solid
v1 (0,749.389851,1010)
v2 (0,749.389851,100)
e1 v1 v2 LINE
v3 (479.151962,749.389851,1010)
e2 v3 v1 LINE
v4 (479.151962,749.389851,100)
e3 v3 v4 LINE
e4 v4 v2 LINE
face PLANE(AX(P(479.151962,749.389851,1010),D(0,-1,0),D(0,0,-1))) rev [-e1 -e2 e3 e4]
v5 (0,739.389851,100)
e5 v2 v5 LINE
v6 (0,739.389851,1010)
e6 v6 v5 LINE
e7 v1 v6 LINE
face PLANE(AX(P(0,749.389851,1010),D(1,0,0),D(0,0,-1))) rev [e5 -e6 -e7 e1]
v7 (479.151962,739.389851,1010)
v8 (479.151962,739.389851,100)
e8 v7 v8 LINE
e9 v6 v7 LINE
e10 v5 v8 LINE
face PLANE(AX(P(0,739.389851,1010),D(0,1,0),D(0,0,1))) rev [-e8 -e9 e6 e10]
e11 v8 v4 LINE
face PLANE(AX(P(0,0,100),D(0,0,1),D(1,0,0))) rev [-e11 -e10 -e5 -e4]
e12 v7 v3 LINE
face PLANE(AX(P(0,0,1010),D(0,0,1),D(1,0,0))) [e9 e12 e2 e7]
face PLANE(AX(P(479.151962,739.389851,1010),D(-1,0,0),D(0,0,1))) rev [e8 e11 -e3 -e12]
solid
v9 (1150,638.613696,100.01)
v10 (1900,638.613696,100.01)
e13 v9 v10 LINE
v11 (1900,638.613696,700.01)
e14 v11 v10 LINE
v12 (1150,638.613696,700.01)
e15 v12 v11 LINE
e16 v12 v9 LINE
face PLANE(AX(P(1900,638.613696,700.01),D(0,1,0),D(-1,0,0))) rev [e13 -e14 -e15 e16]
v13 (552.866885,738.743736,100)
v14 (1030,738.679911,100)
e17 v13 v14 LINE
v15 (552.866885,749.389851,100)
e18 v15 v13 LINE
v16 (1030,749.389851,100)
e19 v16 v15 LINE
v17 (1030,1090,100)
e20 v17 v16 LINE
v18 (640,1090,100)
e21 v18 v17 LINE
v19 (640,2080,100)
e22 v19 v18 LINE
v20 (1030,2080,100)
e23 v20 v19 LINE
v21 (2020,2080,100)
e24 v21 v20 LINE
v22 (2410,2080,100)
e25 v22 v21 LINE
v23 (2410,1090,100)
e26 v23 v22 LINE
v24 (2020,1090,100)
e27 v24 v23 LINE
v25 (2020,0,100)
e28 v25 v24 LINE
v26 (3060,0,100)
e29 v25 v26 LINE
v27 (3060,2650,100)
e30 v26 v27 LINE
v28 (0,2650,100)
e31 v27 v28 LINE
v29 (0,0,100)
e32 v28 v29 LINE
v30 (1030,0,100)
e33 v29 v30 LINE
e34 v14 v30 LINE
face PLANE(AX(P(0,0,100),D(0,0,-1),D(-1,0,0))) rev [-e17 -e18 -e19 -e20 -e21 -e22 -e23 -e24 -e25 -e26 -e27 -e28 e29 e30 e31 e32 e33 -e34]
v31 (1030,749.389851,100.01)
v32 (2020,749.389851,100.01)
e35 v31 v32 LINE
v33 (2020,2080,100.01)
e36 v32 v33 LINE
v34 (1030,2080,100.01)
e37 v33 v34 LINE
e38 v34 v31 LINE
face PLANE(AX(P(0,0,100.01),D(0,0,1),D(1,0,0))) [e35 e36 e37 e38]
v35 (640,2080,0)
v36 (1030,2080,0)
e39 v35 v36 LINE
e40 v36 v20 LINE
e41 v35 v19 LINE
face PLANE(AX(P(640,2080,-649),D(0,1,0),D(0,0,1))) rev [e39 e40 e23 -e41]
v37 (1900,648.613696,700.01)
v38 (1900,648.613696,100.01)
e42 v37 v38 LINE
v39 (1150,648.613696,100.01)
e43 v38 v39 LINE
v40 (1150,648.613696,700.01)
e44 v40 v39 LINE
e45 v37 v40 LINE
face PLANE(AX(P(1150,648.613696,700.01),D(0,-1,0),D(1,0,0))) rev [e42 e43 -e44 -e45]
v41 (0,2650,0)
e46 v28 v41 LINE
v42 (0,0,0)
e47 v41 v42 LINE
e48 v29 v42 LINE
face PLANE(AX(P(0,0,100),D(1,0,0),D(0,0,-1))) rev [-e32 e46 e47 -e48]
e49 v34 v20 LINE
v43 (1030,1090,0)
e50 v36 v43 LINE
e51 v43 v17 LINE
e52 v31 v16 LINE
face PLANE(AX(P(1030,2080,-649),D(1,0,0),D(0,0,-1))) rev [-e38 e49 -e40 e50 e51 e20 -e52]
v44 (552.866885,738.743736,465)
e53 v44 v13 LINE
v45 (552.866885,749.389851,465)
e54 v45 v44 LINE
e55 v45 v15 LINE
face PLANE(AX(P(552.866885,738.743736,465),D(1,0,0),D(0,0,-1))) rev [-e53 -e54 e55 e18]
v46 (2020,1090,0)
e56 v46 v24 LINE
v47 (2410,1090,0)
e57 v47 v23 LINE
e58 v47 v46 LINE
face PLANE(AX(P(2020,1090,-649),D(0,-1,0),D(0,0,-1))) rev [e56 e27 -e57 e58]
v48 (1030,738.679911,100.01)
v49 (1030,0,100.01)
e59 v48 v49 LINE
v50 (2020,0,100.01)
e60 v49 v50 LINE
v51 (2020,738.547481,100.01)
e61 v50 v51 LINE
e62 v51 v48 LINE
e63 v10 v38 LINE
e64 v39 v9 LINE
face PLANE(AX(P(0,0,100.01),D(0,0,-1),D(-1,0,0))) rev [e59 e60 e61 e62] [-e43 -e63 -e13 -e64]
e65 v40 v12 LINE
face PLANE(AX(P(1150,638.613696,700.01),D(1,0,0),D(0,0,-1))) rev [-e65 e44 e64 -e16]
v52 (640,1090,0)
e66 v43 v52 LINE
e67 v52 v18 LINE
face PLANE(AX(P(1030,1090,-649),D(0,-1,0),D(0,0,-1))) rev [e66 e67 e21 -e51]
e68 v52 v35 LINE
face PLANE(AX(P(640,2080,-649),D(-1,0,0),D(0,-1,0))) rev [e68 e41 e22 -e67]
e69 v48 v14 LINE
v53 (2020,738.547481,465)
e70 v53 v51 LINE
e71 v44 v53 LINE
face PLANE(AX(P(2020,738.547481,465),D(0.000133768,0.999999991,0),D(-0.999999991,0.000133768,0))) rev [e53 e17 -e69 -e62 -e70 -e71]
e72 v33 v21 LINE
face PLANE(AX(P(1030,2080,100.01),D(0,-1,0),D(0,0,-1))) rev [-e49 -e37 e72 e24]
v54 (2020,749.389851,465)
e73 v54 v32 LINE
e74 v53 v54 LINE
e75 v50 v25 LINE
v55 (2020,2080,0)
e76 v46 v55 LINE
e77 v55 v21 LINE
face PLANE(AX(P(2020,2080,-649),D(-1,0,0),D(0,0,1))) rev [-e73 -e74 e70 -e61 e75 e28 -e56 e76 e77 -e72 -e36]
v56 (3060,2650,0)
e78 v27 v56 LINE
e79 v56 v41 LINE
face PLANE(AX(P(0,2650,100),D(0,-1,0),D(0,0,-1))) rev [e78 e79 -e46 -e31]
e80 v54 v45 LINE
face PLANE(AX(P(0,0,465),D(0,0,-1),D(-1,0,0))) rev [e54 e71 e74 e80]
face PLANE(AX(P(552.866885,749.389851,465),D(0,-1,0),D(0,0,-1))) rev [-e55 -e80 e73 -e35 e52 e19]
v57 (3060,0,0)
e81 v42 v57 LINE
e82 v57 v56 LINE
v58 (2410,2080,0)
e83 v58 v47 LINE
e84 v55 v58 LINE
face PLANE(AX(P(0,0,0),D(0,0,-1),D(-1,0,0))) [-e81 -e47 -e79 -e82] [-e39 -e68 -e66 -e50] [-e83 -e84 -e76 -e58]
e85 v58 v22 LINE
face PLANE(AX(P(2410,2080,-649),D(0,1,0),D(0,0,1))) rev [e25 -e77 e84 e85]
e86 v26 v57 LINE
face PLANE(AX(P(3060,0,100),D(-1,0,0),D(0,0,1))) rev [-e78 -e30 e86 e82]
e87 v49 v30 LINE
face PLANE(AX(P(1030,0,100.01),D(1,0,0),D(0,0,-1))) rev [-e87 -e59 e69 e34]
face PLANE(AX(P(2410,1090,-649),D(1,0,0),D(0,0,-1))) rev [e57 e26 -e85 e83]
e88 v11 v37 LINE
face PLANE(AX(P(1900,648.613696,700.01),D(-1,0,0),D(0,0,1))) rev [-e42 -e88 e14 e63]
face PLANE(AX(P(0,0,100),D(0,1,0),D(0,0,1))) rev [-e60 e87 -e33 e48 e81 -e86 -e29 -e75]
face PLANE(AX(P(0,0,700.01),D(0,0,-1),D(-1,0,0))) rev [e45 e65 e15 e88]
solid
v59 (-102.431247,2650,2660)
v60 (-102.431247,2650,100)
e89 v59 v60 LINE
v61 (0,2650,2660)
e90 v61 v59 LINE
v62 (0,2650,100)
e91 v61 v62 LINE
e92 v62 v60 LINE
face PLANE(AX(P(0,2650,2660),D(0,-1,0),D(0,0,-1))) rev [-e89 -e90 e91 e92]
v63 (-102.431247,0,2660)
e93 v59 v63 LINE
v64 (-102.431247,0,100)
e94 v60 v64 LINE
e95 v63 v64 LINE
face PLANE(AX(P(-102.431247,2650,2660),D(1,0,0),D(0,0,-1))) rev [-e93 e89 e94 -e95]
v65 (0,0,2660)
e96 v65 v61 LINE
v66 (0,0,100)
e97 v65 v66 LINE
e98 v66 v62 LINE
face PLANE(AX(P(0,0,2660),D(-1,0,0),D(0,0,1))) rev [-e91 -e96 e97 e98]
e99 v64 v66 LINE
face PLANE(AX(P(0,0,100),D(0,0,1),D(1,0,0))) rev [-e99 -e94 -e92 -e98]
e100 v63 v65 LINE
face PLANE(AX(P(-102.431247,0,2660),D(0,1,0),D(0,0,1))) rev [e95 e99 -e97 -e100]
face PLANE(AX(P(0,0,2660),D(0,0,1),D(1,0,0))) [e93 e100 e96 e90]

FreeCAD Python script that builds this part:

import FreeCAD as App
import Part
import Sketcher

V = App.Vector


def add_polygon(sketch, points):
    """Adds a closed chain of lines whose ends are joined by coincident constraints."""
    first, n = sketch.GeometryCount, len(points)
    for a, b in zip(points, points[1:] + points[:1]):
        sketch.addGeometry(Part.LineSegment(App.Vector(*a, 0), App.Vector(*b, 0)), False)
    for i in range(n):
        sketch.addConstraint(Sketcher.Constraint("Coincident", first + i, 2, first + (i + 1) % n, 1))

doc = App.newDocument("Part")
params = doc.addObject("Spreadsheet::Sheet", "Params")
for row, (alias, value) in enumerate([
    ("sketch1_width", "3060 mm"),
    ("sketch1_height", "2650 mm"),
    ("pad1_length", "100 mm"),
    ("sketch2_width", "390 mm"),
    ("sketch2_height", "990 mm"),
    ("pocket1_length", "749 mm"),
    ("pad2_length", "365 mm"),
    ("sketch4_width", "990 mm"),
    ("pad3_length", "0.01 mm"),
    ("sketch5_width", "750 mm"),
    ("sketch5_height", "10 mm"),
    ("pad4_length", "600 mm"),
    ("sketch6_height", "2650 mm"),
    ("pad5_length", "2560 mm"),
    ("sketch7_height", "10 mm"),
    ("pad6_length", "910 mm"),
], start=1):
    params.set(f"A{row}", alias)
    params.set(f"B{row}", "=" + value)
    params.setAlias(f"B{row}", alias)

body = doc.addObject("PartDesign::Body", "Body")

# Sketch on XY plane
sketch1 = doc.addObject("Sketcher::SketchObject", "Sketch")
body.addObject(sketch1)
sketch1.AttachmentSupport = (doc.XY_Plane, [""])
sketch1.MapMode = "FlatFace"
add_polygon(sketch1, [(0, 2650), (0, 0), (3060, 0), (3060, 2650)])  # lines 0-3
sketch1.addConstraint(Sketcher.Constraint("Vertical", 0))
sketch1.addConstraint(Sketcher.Constraint("Horizontal", 1))
sketch1.addConstraint(Sketcher.Constraint("Vertical", 2))
sketch1.addConstraint(Sketcher.Constraint("Horizontal", 3))
sketch1.addConstraint(Sketcher.Constraint("Coincident", 0, 2, -1, 1))
sketch1.addConstraint(Sketcher.Constraint("DistanceX", 1, 1, 1, 2, 3060.0))
sketch1.addConstraint(Sketcher.Constraint("DistanceY", 0, 2, 0, 1, 2650.0))
sketch1.setExpression("Constraints[9]", "Params.sketch1_width")
sketch1.setExpression("Constraints[10]", "Params.sketch1_height")
pad1 = doc.addObject("PartDesign::Pad", "Pad")
body.addObject(pad1)
pad1.Profile = sketch1
pad1.setExpression("Length", "Params.pad1_length")

# Sketch on XY plane
sketch2 = doc.addObject("Sketcher::SketchObject", "Sketch001")
body.addObject(sketch2)
sketch2.AttachmentSupport = (doc.XY_Plane, [""])
sketch2.MapMode = "FlatFace"
sketch2.AttachmentOffset = App.Placement(V(0, 0, 100), App.Rotation())
add_polygon(sketch2, [(2020, 2080), (2020, 1090), (2410, 1090), (2410, 2080)])  # lines 0-3
add_polygon(sketch2, [(640, 2080), (640, 1090), (1030, 1090), (1030, 2080)])  # lines 4-7
sketch2.addConstraint(Sketcher.Constraint("Vertical", 0))
sketch2.addConstraint(Sketcher.Constraint("Horizontal", 1))
sketch2.addConstraint(Sketcher.Constraint("Vertical", 2))
sketch2.addConstraint(Sketcher.Constraint("Horizontal", 3))
sketch2.addConstraint(Sketcher.Constraint("Vertical", 4))
sketch2.addConstraint(Sketcher.Constraint("Horizontal", 5))
sketch2.addConstraint(Sketcher.Constraint("Vertical", 6))
sketch2.addConstraint(Sketcher.Constraint("Horizontal", 7))
sketch2.addConstraint(Sketcher.Constraint("Horizontal", 1, 2, 4, 2))
sketch2.addConstraint(Sketcher.Constraint("Horizontal", 3, 2, 6, 2))
sketch2.addConstraint(Sketcher.Constraint("Equal", 3, 5))
sketch2.addConstraint(Sketcher.Constraint("DistanceX", 1, 1, 1, 2, 390.0))
sketch2.addConstraint(Sketcher.Constraint("DistanceY", 0, 2, 0, 1, 990.0))
sketch2.addConstraint(Sketcher.Constraint("DistanceX", -1, 1, 0, 2, 2020.0))
sketch2.addConstraint(Sketcher.Constraint("DistanceY", -1, 1, 0, 2, 1090.0))
sketch2.addConstraint(Sketcher.Constraint("DistanceX", -1, 1, 4, 2, 640.0))
sketch2.setExpression("Constraints[19]", "Params.sketch2_width")
sketch2.setExpression("Constraints[20]", "Params.sketch2_height")
pocket1 = doc.addObject("PartDesign::Pocket", "Pocket")
body.addObject(pocket1)
pocket1.Profile = sketch2
pocket1.setExpression("Length", "Params.pocket1_length")

# Sketch on XY plane
sketch3 = doc.addObject("Sketcher::SketchObject", "Sketch002")
body.addObject(sketch3)
sketch3.AttachmentSupport = (doc.XY_Plane, [""])
sketch3.MapMode = "FlatFace"
sketch3.AttachmentOffset = App.Placement(V(0, 0, 100), App.Rotation())
add_polygon(sketch3, [(2020, 749), (553, 749), (553, 739), (2020, 739)])  # lines 0-3
sketch3.addConstraint(Sketcher.Constraint("Horizontal", 0))
sketch3.addConstraint(Sketcher.Constraint("Vertical", 1))
sketch3.addConstraint(Sketcher.Constraint("Vertical", 3))
sketch3.addConstraint(Sketcher.Constraint("DistanceX", -1, 1, 2, 2, 2020.0))
sketch3.addConstraint(Sketcher.Constraint("DistanceY", 3, 1, 3, 2, 10.842371))
sketch3.addConstraint(Sketcher.Constraint("DistanceX", 0, 2, 0, 1, 1467.133115))
sketch3.addConstraint(Sketcher.Constraint("DistanceY", 1, 2, 1, 1, 10.646115))
sketch3.addConstraint(Sketcher.Constraint("DistanceY", -1, 1, 0, 2, 749.389851))
pad2 = doc.addObject("PartDesign::Pad", "Pad001")
body.addObject(pad2)
pad2.Profile = sketch3
pad2.setExpression("Length", "Params.pad2_length")

# Sketch on XY plane
sketch4 = doc.addObject("Sketcher::SketchObject", "Sketch003")
body.addObject(sketch4)
sketch4.AttachmentSupport = (doc.XY_Plane, [""])
sketch4.MapMode = "FlatFace"
sketch4.AttachmentOffset = App.Placement(V(0, 0, 100), App.Rotation())
add_polygon(sketch4, [(1030, 2080), (1030, 749), (2020, 749), (2020, 2080)])  # lines 0-3
add_polygon(sketch4, [(2020, 0), (2020, 739), (1030, 739), (1030, 0)])  # lines 4-7
sketch4.addConstraint(Sketcher.Constraint("Vertical", 0))
sketch4.addConstraint(Sketcher.Constraint("Horizontal", 1))
sketch4.addConstraint(Sketcher.Constraint("Vertical", 2))
sketch4.addConstraint(Sketcher.Constraint("Horizontal", 3))
sketch4.addConstraint(Sketcher.Constraint("Vertical", 4))
sketch4.addConstraint(Sketcher.Constraint("Vertical", 6))
sketch4.addConstraint(Sketcher.Constraint("Horizontal", 7))
sketch4.addConstraint(Sketcher.Constraint("PointOnObject", 6, 2, -1))
sketch4.addConstraint(Sketcher.Constraint("Vertical", 2, 2, 4, 2))
sketch4.addConstraint(Sketcher.Constraint("Vertical", 3, 2, 5, 2))
sketch4.addConstraint(Sketcher.Constraint("DistanceX", 1, 1, 1, 2, 990.0))
sketch4.addConstraint(Sketcher.Constraint("DistanceX", -1, 1, 0, 2, 1030.0))
sketch4.addConstraint(Sketcher.Constraint("DistanceY", -1, 1, 2, 2, 2080.0))
sketch4.addConstraint(Sketcher.Constraint("DistanceY", 0, 2, 0, 1, 1330.610149))
sketch4.addConstraint(Sketcher.Constraint("DistanceY", 4, 1, 4, 2, 738.547481))
sketch4.addConstraint(Sketcher.Constraint("DistanceY", 6, 2, 6, 1, 738.679911))
sketch4.setExpression("Constraints[18]", "Params.sketch4_width")
pad3 = doc.addObject("PartDesign::Pad", "Pad002")
body.addObject(pad3)
pad3.Profile = sketch4
pad3.setExpression("Length", "Params.pad3_length")

# Sketch on XY plane
sketch5 = doc.addObject("Sketcher::SketchObject", "Sketch004")
body.addObject(sketch5)
sketch5.AttachmentSupport = (doc.XY_Plane, [""])
sketch5.MapMode = "FlatFace"
sketch5.AttachmentOffset = App.Placement(V(0, 0, 100.01), App.Rotation())
add_polygon(sketch5, [(1150, 649), (1150, 639), (1900, 639), (1900, 649)])  # lines 0-3
sketch5.addConstraint(Sketcher.Constraint("Vertical", 0))
sketch5.addConstraint(Sketcher.Constraint("Horizontal", 1))
sketch5.addConstraint(Sketcher.Constraint("Vertical", 2))
sketch5.addConstraint(Sketcher.Constraint("Horizontal", 3))
sketch5.addConstraint(Sketcher.Constraint("DistanceX", 1, 1, 1, 2, 750.0))
sketch5.addConstraint(Sketcher.Constraint("DistanceY", 0, 2, 0, 1, 10.0))
sketch5.addConstraint(Sketcher.Constraint("DistanceX", -1, 1, 0, 2, 1150.0))
sketch5.addConstraint(Sketcher.Constraint("DistanceY", -1, 1, 0, 2, 638.613696))
sketch5.setExpression("Constraints[8]", "Params.sketch5_width")
sketch5.setExpression("Constraints[9]", "Params.sketch5_height")
pad4 = doc.addObject("PartDesign::Pad", "Pad003")
body.addObject(pad4)
pad4.Profile = sketch5
pad4.setExpression("Length", "Params.pad4_length")
body2 = doc.addObject("PartDesign::Body", "Body001")

# Sketch on XY plane
sketch6 = doc.addObject("Sketcher::SketchObject", "Sketch005")
body2.addObject(sketch6)
sketch6.AttachmentSupport = (doc.getObject("XY_Plane001"), [""])
sketch6.MapMode = "FlatFace"
sketch6.AttachmentOffset = App.Placement(V(0, 0, 100), App.Rotation())
add_polygon(sketch6, [(-102, 2650), (-102, 0), (0, 0), (0, 2650)])  # lines 0-3
sketch6.addConstraint(Sketcher.Constraint("Vertical", 0))
sketch6.addConstraint(Sketcher.Constraint("Horizontal", 1))
sketch6.addConstraint(Sketcher.Constraint("Vertical", 2))
sketch6.addConstraint(Sketcher.Constraint("Horizontal", 3))
sketch6.addConstraint(Sketcher.Constraint("Coincident", 1, 2, -1, 1))
sketch6.addConstraint(Sketcher.Constraint("DistanceY", 0, 2, 0, 1, 2650.0))
sketch6.addConstraint(Sketcher.Constraint("DistanceX", 1, 1, 1, 2, 102.431247))
sketch6.setExpression("Constraints[9]", "Params.sketch6_height")
pad5 = doc.addObject("PartDesign::Pad", "Pad004")
body2.addObject(pad5)
pad5.Profile = sketch6
pad5.setExpression("Length", "Params.pad5_length")
body3 = doc.addObject("PartDesign::Body", "Body002")

# Sketch on XY plane
sketch7 = doc.addObject("Sketcher::SketchObject", "Sketch006")
body3.addObject(sketch7)
sketch7.AttachmentSupport = (doc.getObject("XY_Plane002"), [""])
sketch7.MapMode = "FlatFace"
sketch7.AttachmentOffset = App.Placement(V(0, 0, 100), App.Rotation())
add_polygon(sketch7, [(0, 749), (0, 739), (479, 739), (479, 749)])  # lines 0-3
sketch7.addConstraint(Sketcher.Constraint("Vertical", 0))
sketch7.addConstraint(Sketcher.Constraint("Horizontal", 1))
sketch7.addConstraint(Sketcher.Constraint("Vertical", 2))
sketch7.addConstraint(Sketcher.Constraint("Horizontal", 3))
sketch7.addConstraint(Sketcher.Constraint("PointOnObject", 0, 2, -2))
sketch7.addConstraint(Sketcher.Constraint("DistanceY", 0, 2, 0, 1, 10.0))
sketch7.addConstraint(Sketcher.Constraint("DistanceX", 1, 1, 1, 2, 479.151962))
sketch7.addConstraint(Sketcher.Constraint("DistanceY", -1, 1, 0, 2, 739.389851))
sketch7.setExpression("Constraints[9]", "Params.sketch7_height")
pad6 = doc.addObject("PartDesign::Pad", "Pad005")
body3.addObject(pad6)
pad6.Profile = sketch7
pad6.setExpression("Length", "Params.pad6_length")

doc.recompute()
